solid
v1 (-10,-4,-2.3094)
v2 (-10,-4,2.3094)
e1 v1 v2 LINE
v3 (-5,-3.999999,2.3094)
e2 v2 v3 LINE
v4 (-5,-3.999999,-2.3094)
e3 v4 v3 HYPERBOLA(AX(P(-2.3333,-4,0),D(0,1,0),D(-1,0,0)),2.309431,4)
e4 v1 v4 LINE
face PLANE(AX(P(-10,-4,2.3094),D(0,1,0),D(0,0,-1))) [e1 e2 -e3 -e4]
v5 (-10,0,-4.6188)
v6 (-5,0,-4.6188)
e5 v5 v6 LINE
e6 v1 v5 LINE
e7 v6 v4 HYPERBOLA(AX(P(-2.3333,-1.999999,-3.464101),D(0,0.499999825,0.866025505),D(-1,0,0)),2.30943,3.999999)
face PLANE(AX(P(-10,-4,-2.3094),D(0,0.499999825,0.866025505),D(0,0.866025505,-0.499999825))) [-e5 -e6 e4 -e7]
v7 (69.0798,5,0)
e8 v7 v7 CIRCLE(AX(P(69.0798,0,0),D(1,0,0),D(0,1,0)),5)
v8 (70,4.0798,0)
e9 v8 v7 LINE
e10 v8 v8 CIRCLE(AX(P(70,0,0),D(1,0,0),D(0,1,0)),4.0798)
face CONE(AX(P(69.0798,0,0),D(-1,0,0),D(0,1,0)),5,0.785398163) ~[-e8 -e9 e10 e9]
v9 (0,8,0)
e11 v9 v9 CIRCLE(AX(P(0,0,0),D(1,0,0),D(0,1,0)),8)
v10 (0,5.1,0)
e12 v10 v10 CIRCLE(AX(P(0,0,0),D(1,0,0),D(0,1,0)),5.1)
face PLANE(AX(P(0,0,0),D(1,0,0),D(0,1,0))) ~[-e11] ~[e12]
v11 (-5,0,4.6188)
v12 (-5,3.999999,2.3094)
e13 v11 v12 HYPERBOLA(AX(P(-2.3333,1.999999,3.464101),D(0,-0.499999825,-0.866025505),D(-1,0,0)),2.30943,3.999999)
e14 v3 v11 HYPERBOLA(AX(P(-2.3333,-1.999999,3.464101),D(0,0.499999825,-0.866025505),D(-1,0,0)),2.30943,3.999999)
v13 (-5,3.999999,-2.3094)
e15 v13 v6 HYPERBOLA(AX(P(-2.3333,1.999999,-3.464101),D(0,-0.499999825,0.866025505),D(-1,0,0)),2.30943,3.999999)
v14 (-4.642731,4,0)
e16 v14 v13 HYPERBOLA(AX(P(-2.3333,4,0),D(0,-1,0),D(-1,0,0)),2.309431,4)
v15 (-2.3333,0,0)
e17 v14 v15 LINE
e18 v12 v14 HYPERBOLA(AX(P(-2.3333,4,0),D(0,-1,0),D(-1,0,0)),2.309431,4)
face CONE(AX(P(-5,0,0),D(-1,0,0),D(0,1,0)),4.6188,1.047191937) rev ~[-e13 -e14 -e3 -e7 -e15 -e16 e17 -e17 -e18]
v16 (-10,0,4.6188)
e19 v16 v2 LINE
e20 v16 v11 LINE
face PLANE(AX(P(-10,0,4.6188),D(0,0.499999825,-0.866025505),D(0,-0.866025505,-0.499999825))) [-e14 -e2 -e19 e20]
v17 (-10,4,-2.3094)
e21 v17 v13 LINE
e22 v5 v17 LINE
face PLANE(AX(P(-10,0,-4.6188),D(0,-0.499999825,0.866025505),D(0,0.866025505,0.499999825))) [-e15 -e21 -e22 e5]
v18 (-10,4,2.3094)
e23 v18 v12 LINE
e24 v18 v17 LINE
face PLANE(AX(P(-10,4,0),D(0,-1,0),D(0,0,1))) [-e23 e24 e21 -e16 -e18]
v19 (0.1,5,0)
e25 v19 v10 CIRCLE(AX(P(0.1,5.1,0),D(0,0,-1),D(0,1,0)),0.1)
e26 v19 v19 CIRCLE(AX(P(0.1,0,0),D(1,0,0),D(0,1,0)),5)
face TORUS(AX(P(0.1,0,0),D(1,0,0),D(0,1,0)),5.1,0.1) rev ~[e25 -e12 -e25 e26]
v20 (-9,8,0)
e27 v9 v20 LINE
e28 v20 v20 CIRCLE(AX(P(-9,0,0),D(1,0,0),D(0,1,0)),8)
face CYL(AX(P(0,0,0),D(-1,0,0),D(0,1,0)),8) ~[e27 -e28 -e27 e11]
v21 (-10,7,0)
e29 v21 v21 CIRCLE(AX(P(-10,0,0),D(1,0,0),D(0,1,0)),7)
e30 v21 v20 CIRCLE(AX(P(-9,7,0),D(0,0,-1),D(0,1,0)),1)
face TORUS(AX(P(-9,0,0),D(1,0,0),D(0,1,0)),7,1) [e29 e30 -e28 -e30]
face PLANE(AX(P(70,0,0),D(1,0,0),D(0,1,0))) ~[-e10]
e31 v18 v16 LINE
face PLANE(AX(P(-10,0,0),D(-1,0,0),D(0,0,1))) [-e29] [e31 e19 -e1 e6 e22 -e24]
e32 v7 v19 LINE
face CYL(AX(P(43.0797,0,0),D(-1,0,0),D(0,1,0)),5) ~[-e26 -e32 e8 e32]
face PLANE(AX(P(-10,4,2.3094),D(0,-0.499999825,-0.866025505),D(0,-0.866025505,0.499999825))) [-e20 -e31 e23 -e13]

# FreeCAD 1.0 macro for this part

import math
import FreeCAD as App
import Part
import Sketcher
from FreeCAD import Vector
Q = App.Units.Quantity


def edges_at(feature, points):
    """Names of the edges that pass closest to the given points."""
    edges = feature.Shape.Edges
    near = lambda p: min(range(len(edges)), key=lambda i: edges[i].distToShape(Part.Vertex(*p))[0])
    return sorted({f"Edge{near(p) + 1}" for p in points})


def add_polygon(sketch, points):
    """Adds a closed chain of lines whose ends are joined by coincident constraints."""
    first, n = sketch.GeometryCount, len(points)
    for a, b in zip(points, points[1:] + points[:1]):
        sketch.addGeometry(Part.LineSegment(App.Vector(*a, 0), App.Vector(*b, 0)), False)
    for i in range(n):
        sketch.addConstraint(Sketcher.Constraint("Coincident", first + i, 2, first + (i + 1) % n, 1))

doc = App.newDocument("Part")
body = doc.addObject("PartDesign::Body", "Body")

# Sketch on XY plane
sketch1 = body.newObject("Sketcher::SketchObject", "Sketch")
sketch1.AttachmentSupport = (doc.getObject("XY_Plane"), [""])
sketch1.MapMode = "FlatFace"
add_polygon(sketch1, [(-5, 4.6188), (-2.3333, 0), (70, 0), (70, 5), (0, 5), (0, 8), (-10, 8), (-10, 4.6188)])  # lines 0-7
sketch1.addConstraint(Sketcher.Constraint("Horizontal", 1))
sketch1.addConstraint(Sketcher.Constraint("Vertical", 2))
sketch1.addConstraint(Sketcher.Constraint("Horizontal", 3))
sketch1.addConstraint(Sketcher.Constraint("Vertical", 4))
sketch1.addConstraint(Sketcher.Constraint("Horizontal", 5))
sketch1.addConstraint(Sketcher.Constraint("Vertical", 6))
sketch1.addConstraint(Sketcher.Constraint("Horizontal", 7))
sketch1.addConstraint(Sketcher.Constraint("PointOnObject", 0, 2, -1))
sketch1.addConstraint(Sketcher.Constraint("PointOnObject", 3, 2, -2))
sketch1.addConstraint(Sketcher.Constraint("Equal", 7, 2))
sketch1.addConstraint(Sketcher.Constraint("DistanceX", 3, 2, 3, 1, Q("70 mm")))
sketch1.addConstraint(Sketcher.Constraint("DistanceX", 5, 2, 5, 1, Q("10 mm")))
sketch1.addConstraint(Sketcher.Constraint("DistanceX", 7, 1, 7, 2, Q("5 mm")))
sketch1.addConstraint(Sketcher.Constraint("Angle", 0, Q("-59.9997 deg")))
sketch1.addConstraint(Sketcher.Constraint("DistanceY", 4, 1, 4, 2, Q("3 mm")))
sketch1.addConstraint(Sketcher.Constraint("DistanceX", 1, 1, 1, 2, Q("72.3333 mm")))
revolution = body.newObject("PartDesign::Revolution", "Revolution")
revolution.Profile = sketch1
revolution.ReferenceAxis = (sketch1, ["H_Axis"])
revolution.Angle = 360

# Sketch on YZ plane
sketch2 = body.newObject("Sketcher::SketchObject", "Sketch001")
sketch2.AttachmentSupport = (doc.getObject("YZ_Plane"), [""])
sketch2.MapMode = "FlatFace"
sketch2.AttachmentOffset = App.Placement(Vector(0, 0, -10), App.Rotation())
sketch2.addGeometry(Part.LineSegment(Vector(4, 2.3094, 0), Vector(0, 4.6188, 0)), False)
sketch2.addGeometry(Part.ArcOfCircle(Part.Circle(Vector(0, 0, 0), Vector(0, 0, 1), 4.6188), math.radians(29.999988), math.radians(90)), False)
sketch2.addGeometry(Part.ArcOfCircle(Part.Circle(Vector(0, 0, 0), Vector(0, 0, 1), 4.6188), math.radians(90), math.radians(150.000012)), False)
sketch2.addGeometry(Part.LineSegment(Vector(0, 4.6188, 0), Vector(-4, 2.3094, 0)), False)
sketch2.addGeometry(Part.ArcOfCircle(Part.Circle(Vector(0, 0, 0), Vector(0, 0, 1), 4.6188), math.radians(-29.999988), math.radians(29.999988)), False)
sketch2.addGeometry(Part.LineSegment(Vector(4, 2.3094, 0), Vector(4, -2.3094, 0)), False)
sketch2.addGeometry(Part.LineSegment(Vector(-4, 2.3094, 0), Vector(-4, -2.3094, 0)), False)
sketch2.addGeometry(Part.ArcOfCircle(Part.Circle(Vector(0, 0, 0), Vector(0, 0, 1), 4.6188), math.radians(150.000012), math.radians(209.999988)), False)
sketch2.addGeometry(Part.LineSegment(Vector(-4, -2.3094, 0), Vector(0, -4.6188, 0)), False)
sketch2.addGeometry(Part.ArcOfCircle(Part.Circle(Vector(0, 0, 0), Vector(0, 0, 1), 4.6188), math.radians(-150.000012), math.radians(-90)), False)
sketch2.addGeometry(Part.ArcOfCircle(Part.Circle(Vector(0, 0, 0), Vector(0, 0, 1), 4.6188), math.radians(-90), math.radians(-29.999988)), False)
sketch2.addGeometry(Part.LineSegment(Vector(0, -4.6188, 0), Vector(4, -2.3094, 0)), False)
sketch2.addConstraint(Sketcher.Constraint("Coincident", 0, 1, 1, 1))
sketch2.addConstraint(Sketcher.Constraint("Coincident", 1, 2, 0, 2))
sketch2.addConstraint(Sketcher.Constraint("Coincident", 2, 1, 3, 1))
sketch2.addConstraint(Sketcher.Constraint("Coincident", 3, 2, 2, 2))
sketch2.addConstraint(Sketcher.Constraint("Coincident", 4, 1, 5, 2))
sketch2.addConstraint(Sketcher.Constraint("Coincident", 5, 1, 4, 2))
sketch2.addConstraint(Sketcher.Constraint("Coincident", 6, 1, 7, 1))
sketch2.addConstraint(Sketcher.Constraint("Coincident", 7, 2, 6, 2))
sketch2.addConstraint(Sketcher.Constraint("Coincident", 8, 1, 9, 1))
sketch2.addConstraint(Sketcher.Constraint("Coincident", 9, 2, 8, 2))
sketch2.addConstraint(Sketcher.Constraint("Coincident", 10, 1, 11, 1))
sketch2.addConstraint(Sketcher.Constraint("Coincident", 11, 2, 10, 2))
sketch2.addConstraint(Sketcher.Constraint("Vertical", 5))
sketch2.addConstraint(Sketcher.Constraint("Vertical", 6))
sketch2.addConstraint(Sketcher.Constraint("Coincident", 1, 3, -1, 1))
sketch2.addConstraint(Sketcher.Constraint("Coincident", 2, 3, -1, 1))
sketch2.addConstraint(Sketcher.Constraint("Coincident", 4, 3, -1, 1))
sketch2.addConstraint(Sketcher.Constraint("Coincident", 7, 3, -1, 1))
sketch2.addConstraint(Sketcher.Constraint("Coincident", 9, 3, -1, 1))
sketch2.addConstraint(Sketcher.Constraint("Coincident", 10, 3, -1, 1))
sketch2.addConstraint(Sketcher.Constraint("Coincident", 2, 1, 1, 2))
sketch2.addConstraint(Sketcher.Constraint("Coincident", 5, 1, 0, 1))
sketch2.addConstraint(Sketcher.Constraint("Coincident", 6, 1, 3, 2))
sketch2.addConstraint(Sketcher.Constraint("Coincident", 8, 1, 7, 2))
sketch2.addConstraint(Sketcher.Constraint("Coincident", 10, 1, 9, 2))
sketch2.addConstraint(Sketcher.Constraint("PointOnObject", 1, 2, -2))
sketch2.addConstraint(Sketcher.Constraint("PointOnObject", 9, 2, -2))
sketch2.addConstraint(Sketcher.Constraint("Parallel", 0, 8))
sketch2.addConstraint(Sketcher.Constraint("Parallel", 3, 11))
sketch2.addConstraint(Sketcher.Constraint("Angle", 0, Q("150 deg")))
sketch2.addConstraint(Sketcher.Constraint("DistanceX", -1, 1, 0, 1, Q("4 mm")))
pad1 = body.newObject("PartDesign::Pad", "Pad")
pad1.Profile = sketch2
pad1.Type = "UpToFirst"
doc.recompute()

fillet = body.newObject("PartDesign::Fillet", "Fillet")
fillet.Base = (pad1, edges_at(pad1, [(-10, -8, 0)]))
fillet.Radius = 1
doc.recompute()

chamfer = body.newObject("PartDesign::Chamfer", "Chamfer")
chamfer.Base = (fillet, edges_at(fillet, [(70, -5, 0)]))
chamfer.ChamferType = "Two distances"
chamfer.Size = 0.9202
chamfer.Size2 = 0.9202
doc.recompute()

fillet2 = body.newObject("PartDesign::Fillet", "Fillet001")
fillet2.Base = (chamfer, edges_at(chamfer, [(0, -5, 0)]))
fillet2.Radius = 0.1

doc.recompute()
